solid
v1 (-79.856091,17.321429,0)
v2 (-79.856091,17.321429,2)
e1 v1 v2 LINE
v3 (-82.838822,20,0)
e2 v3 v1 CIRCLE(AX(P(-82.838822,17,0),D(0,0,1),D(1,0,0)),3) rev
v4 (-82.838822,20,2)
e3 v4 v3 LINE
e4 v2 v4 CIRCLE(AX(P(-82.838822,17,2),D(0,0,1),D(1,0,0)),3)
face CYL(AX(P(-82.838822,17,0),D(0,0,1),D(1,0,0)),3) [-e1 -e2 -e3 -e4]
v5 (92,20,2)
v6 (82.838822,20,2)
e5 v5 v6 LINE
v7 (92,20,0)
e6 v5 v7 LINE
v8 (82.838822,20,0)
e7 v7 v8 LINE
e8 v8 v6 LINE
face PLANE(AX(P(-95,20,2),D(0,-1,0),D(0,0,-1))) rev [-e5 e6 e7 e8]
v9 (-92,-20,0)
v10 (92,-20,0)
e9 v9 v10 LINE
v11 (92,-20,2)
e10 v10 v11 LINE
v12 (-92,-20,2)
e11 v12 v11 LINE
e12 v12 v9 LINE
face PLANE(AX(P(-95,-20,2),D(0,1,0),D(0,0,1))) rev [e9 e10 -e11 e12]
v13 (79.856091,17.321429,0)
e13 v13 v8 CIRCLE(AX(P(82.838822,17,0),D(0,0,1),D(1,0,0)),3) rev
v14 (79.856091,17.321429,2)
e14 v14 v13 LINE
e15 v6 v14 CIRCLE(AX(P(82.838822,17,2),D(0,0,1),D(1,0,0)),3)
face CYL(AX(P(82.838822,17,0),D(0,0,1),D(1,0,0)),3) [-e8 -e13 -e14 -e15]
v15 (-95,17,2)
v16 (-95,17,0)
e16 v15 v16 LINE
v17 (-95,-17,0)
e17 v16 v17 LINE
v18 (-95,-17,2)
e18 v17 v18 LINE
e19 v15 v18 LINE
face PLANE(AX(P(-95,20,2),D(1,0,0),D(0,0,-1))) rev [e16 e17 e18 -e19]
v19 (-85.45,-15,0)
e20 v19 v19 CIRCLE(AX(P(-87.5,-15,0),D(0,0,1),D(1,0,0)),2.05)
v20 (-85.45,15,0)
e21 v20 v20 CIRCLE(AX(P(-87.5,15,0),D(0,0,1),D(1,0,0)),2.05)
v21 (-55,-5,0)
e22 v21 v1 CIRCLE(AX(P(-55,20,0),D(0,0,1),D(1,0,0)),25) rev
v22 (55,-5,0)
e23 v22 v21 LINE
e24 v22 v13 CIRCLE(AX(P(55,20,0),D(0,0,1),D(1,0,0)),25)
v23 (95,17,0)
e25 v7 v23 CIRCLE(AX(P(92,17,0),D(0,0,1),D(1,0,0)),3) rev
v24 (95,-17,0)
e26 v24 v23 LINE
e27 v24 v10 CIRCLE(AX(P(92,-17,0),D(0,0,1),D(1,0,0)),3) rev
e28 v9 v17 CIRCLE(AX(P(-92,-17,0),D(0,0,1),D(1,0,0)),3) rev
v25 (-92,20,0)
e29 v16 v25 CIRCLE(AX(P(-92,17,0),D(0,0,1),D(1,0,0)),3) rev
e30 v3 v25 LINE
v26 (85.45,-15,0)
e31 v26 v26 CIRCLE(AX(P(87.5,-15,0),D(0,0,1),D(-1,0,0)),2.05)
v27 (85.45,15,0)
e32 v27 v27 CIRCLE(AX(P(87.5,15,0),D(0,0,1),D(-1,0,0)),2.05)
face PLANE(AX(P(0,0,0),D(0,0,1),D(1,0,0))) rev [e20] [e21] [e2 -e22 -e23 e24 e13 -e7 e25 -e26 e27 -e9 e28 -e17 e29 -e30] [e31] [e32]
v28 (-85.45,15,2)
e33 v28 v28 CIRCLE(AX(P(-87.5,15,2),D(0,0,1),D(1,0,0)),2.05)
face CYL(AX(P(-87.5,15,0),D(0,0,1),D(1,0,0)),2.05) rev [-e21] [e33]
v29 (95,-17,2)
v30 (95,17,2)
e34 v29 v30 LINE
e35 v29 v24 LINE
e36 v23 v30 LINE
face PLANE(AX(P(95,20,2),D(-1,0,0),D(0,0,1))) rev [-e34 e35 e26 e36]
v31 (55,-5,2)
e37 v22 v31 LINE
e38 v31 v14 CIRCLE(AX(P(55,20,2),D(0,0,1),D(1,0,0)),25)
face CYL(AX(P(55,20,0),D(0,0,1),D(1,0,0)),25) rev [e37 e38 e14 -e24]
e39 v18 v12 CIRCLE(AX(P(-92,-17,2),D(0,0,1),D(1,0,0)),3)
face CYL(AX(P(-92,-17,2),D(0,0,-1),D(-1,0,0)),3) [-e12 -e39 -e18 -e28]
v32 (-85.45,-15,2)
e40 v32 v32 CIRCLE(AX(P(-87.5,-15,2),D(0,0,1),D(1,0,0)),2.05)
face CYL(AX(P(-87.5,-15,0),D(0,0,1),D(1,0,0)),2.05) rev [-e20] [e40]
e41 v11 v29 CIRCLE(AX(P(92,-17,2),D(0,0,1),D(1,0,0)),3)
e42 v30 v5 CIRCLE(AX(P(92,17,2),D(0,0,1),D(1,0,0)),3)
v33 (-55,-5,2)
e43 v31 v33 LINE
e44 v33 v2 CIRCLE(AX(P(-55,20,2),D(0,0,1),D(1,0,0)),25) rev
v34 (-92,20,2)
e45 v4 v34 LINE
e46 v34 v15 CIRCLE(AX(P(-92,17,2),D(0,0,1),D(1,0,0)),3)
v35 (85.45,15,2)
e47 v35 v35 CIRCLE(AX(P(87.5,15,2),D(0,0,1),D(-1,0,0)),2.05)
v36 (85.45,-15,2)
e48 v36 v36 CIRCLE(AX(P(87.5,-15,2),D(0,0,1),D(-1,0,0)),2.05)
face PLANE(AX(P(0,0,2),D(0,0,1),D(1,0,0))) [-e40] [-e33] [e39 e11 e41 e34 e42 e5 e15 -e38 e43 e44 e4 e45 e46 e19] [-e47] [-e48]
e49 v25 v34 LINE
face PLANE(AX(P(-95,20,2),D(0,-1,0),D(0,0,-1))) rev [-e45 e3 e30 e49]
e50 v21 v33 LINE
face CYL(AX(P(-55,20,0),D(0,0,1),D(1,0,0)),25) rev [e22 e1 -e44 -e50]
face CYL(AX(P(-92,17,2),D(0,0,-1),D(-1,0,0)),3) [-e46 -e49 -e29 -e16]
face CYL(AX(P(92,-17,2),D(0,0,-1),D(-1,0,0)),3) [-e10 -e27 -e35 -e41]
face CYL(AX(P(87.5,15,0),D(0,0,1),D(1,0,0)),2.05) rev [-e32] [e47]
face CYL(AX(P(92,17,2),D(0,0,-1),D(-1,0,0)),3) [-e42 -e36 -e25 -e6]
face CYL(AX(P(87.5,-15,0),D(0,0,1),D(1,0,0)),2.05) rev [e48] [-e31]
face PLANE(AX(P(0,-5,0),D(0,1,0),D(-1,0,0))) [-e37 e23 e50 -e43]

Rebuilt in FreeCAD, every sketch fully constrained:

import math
import FreeCAD as App
import Part
import Sketcher
from FreeCAD import Vector
Q = App.Units.Quantity


def edges_at(feature, points):
    """Names of the edges that pass closest to the given points."""
    edges = feature.Shape.Edges
    near = lambda p: min(range(len(edges)), key=lambda i: edges[i].distToShape(Part.Vertex(*p))[0])
    return sorted({f"Edge{near(p) + 1}" for p in points})


def add_polygon(sketch, points):
    """Adds a closed chain of lines whose ends are joined by coincident constraints."""
    first, n = sketch.GeometryCount, len(points)
    for a, b in zip(points, points[1:] + points[:1]):
        sketch.addGeometry(Part.LineSegment(App.Vector(*a, 0), App.Vector(*b, 0)), False)
    for i in range(n):
        sketch.addConstraint(Sketcher.Constraint("Coincident", first + i, 2, first + (i + 1) % n, 1))

doc = App.newDocument("Part")
body = doc.addObject("PartDesign::Body", "Body")

sketch1 = body.newObject("Sketcher::SketchObject", "Sketch")
sketch1.AttachmentSupport = (doc.getObject("XY_Plane"), [""])
sketch1.MapMode = "FlatFace"
add_polygon(sketch1, [(-95, 20), (-95, -20), (95, -20), (95, 20)])
sketch1.addConstraint([
    Sketcher.Constraint("Vertical", 0),
    Sketcher.Constraint("Horizontal", 1),
    Sketcher.Constraint("Vertical", 2),
    Sketcher.Constraint("Horizontal", 3),
    Sketcher.Constraint("Symmetric", 0, 2, 2, 2, -1, 1),
    Sketcher.Constraint("DistanceX", 1, 1, 1, 2, Q("190 mm")),
    Sketcher.Constraint("DistanceY", 0, 2, 0, 1, Q("40 mm")),
])
pad1 = body.newObject("PartDesign::Pad", "Pad")
pad1.Profile = sketch1
pad1.Length = 2

sketch2 = body.newObject("Sketcher::SketchObject", "Sketch001")
sketch2.AttachmentSupport = (doc.getObject("XY_Plane"), [""])
sketch2.MapMode = "FlatFace"
sketch2.AttachmentOffset = App.Placement(Vector(0, 0, 2), App.Rotation())
sketch2.addGeometry([
    Part.ArcOfCircle(Part.Circle(Vector(-55, 20, 0), Vector(0, 0, 1), 25), math.radians(180), math.radians(270)),
    Part.LineSegment(Vector(-55, -5, 0), Vector(55, -5, 0)),
    Part.ArcOfCircle(Part.Circle(Vector(55, 20, 0), Vector(0, 0, 1), 25), math.radians(-90), math.radians(0)),
    Part.LineSegment(Vector(80, 20, 0), Vector(-80, 20, 0)),
], False)
sketch2.addConstraint([
    Sketcher.Constraint("Tangent", 0, 2, 1, 1),
    Sketcher.Constraint("Tangent", 1, 2, 2, 1),
    Sketcher.Constraint("Coincident", 2, 2, 3, 1),
    Sketcher.Constraint("Coincident", 3, 2, 0, 1),
    Sketcher.Constraint("Horizontal", 1),
    Sketcher.Constraint("Horizontal", 3),
    Sketcher.Constraint("Equal", 0, 2),
    Sketcher.Constraint("Horizontal", 0, 3, 2, 2),
    Sketcher.Constraint("Radius", 0, Q("25 mm")),
    Sketcher.Constraint("DistanceX", 1, 1, 1, 2, Q("110 mm")),
    Sketcher.Constraint("DistanceX", 0, 3, -1, 1, Q("55 mm")),
    Sketcher.Constraint("DistanceY", -1, 1, 0, 3, Q("20 mm")),
])
pocket1 = body.newObject("PartDesign::Pocket", "Pocket")
pocket1.Profile = sketch2
pocket1.Length = 2

sketch3 = body.newObject("Sketcher::SketchObject", "Sketch002")
sketch3.AttachmentSupport = (doc.getObject("XY_Plane"), [""])
sketch3.MapMode = "FlatFace"
sketch3.AttachmentOffset = App.Placement(Vector(0, 0, 2), App.Rotation())
sketch3.addGeometry([
    Part.Circle(Vector(-87.5, 15, 0), Vector(0, 0, 1), 2.05),
    Part.Circle(Vector(-87.5, -15, 0), Vector(0, 0, 1), 2.05),
    Part.Circle(Vector(87.5, -15, 0), Vector(0, 0, 1), 2.05),
    Part.Circle(Vector(87.5, 15, 0), Vector(0, 0, 1), 2.05),
], False)
sketch3.addConstraint([
    Sketcher.Constraint("Equal", 0, 1),
    Sketcher.Constraint("Equal", 1, 2),
    Sketcher.Constraint("Equal", 2, 3),
    Sketcher.Constraint("Symmetric", 0, 3, 2, 3, -1, 1),
    Sketcher.Constraint("Symmetric", 1, 3, 3, 3, -1, 1),
    Sketcher.Constraint("Symmetric", 1, 3, 2, 3, -2),
    Sketcher.Constraint("Diameter", 0, Q("4.1 mm")),
    Sketcher.Constraint("DistanceY", -1, 1, 0, 3, Q("15 mm")),
    Sketcher.Constraint("DistanceX", 1, 3, 2, 3, Q("175 mm")),
])
pocket2 = body.newObject("PartDesign::Pocket", "Pocket001")
pocket2.Profile = sketch3
pocket2.Length = 2
doc.recompute()

fillet = body.newObject("PartDesign::Fillet", "Fillet")
fillet.Base = (pocket2, edges_at(pocket2, [
    (-80, 20, 1),
    (80, 20, 1),
    (95, -20, 1),
    (-95, -20, 1),
    (-95, 20, 1),
    (95, 20, 1),
]))
fillet.Radius = 3

doc.recompute()
